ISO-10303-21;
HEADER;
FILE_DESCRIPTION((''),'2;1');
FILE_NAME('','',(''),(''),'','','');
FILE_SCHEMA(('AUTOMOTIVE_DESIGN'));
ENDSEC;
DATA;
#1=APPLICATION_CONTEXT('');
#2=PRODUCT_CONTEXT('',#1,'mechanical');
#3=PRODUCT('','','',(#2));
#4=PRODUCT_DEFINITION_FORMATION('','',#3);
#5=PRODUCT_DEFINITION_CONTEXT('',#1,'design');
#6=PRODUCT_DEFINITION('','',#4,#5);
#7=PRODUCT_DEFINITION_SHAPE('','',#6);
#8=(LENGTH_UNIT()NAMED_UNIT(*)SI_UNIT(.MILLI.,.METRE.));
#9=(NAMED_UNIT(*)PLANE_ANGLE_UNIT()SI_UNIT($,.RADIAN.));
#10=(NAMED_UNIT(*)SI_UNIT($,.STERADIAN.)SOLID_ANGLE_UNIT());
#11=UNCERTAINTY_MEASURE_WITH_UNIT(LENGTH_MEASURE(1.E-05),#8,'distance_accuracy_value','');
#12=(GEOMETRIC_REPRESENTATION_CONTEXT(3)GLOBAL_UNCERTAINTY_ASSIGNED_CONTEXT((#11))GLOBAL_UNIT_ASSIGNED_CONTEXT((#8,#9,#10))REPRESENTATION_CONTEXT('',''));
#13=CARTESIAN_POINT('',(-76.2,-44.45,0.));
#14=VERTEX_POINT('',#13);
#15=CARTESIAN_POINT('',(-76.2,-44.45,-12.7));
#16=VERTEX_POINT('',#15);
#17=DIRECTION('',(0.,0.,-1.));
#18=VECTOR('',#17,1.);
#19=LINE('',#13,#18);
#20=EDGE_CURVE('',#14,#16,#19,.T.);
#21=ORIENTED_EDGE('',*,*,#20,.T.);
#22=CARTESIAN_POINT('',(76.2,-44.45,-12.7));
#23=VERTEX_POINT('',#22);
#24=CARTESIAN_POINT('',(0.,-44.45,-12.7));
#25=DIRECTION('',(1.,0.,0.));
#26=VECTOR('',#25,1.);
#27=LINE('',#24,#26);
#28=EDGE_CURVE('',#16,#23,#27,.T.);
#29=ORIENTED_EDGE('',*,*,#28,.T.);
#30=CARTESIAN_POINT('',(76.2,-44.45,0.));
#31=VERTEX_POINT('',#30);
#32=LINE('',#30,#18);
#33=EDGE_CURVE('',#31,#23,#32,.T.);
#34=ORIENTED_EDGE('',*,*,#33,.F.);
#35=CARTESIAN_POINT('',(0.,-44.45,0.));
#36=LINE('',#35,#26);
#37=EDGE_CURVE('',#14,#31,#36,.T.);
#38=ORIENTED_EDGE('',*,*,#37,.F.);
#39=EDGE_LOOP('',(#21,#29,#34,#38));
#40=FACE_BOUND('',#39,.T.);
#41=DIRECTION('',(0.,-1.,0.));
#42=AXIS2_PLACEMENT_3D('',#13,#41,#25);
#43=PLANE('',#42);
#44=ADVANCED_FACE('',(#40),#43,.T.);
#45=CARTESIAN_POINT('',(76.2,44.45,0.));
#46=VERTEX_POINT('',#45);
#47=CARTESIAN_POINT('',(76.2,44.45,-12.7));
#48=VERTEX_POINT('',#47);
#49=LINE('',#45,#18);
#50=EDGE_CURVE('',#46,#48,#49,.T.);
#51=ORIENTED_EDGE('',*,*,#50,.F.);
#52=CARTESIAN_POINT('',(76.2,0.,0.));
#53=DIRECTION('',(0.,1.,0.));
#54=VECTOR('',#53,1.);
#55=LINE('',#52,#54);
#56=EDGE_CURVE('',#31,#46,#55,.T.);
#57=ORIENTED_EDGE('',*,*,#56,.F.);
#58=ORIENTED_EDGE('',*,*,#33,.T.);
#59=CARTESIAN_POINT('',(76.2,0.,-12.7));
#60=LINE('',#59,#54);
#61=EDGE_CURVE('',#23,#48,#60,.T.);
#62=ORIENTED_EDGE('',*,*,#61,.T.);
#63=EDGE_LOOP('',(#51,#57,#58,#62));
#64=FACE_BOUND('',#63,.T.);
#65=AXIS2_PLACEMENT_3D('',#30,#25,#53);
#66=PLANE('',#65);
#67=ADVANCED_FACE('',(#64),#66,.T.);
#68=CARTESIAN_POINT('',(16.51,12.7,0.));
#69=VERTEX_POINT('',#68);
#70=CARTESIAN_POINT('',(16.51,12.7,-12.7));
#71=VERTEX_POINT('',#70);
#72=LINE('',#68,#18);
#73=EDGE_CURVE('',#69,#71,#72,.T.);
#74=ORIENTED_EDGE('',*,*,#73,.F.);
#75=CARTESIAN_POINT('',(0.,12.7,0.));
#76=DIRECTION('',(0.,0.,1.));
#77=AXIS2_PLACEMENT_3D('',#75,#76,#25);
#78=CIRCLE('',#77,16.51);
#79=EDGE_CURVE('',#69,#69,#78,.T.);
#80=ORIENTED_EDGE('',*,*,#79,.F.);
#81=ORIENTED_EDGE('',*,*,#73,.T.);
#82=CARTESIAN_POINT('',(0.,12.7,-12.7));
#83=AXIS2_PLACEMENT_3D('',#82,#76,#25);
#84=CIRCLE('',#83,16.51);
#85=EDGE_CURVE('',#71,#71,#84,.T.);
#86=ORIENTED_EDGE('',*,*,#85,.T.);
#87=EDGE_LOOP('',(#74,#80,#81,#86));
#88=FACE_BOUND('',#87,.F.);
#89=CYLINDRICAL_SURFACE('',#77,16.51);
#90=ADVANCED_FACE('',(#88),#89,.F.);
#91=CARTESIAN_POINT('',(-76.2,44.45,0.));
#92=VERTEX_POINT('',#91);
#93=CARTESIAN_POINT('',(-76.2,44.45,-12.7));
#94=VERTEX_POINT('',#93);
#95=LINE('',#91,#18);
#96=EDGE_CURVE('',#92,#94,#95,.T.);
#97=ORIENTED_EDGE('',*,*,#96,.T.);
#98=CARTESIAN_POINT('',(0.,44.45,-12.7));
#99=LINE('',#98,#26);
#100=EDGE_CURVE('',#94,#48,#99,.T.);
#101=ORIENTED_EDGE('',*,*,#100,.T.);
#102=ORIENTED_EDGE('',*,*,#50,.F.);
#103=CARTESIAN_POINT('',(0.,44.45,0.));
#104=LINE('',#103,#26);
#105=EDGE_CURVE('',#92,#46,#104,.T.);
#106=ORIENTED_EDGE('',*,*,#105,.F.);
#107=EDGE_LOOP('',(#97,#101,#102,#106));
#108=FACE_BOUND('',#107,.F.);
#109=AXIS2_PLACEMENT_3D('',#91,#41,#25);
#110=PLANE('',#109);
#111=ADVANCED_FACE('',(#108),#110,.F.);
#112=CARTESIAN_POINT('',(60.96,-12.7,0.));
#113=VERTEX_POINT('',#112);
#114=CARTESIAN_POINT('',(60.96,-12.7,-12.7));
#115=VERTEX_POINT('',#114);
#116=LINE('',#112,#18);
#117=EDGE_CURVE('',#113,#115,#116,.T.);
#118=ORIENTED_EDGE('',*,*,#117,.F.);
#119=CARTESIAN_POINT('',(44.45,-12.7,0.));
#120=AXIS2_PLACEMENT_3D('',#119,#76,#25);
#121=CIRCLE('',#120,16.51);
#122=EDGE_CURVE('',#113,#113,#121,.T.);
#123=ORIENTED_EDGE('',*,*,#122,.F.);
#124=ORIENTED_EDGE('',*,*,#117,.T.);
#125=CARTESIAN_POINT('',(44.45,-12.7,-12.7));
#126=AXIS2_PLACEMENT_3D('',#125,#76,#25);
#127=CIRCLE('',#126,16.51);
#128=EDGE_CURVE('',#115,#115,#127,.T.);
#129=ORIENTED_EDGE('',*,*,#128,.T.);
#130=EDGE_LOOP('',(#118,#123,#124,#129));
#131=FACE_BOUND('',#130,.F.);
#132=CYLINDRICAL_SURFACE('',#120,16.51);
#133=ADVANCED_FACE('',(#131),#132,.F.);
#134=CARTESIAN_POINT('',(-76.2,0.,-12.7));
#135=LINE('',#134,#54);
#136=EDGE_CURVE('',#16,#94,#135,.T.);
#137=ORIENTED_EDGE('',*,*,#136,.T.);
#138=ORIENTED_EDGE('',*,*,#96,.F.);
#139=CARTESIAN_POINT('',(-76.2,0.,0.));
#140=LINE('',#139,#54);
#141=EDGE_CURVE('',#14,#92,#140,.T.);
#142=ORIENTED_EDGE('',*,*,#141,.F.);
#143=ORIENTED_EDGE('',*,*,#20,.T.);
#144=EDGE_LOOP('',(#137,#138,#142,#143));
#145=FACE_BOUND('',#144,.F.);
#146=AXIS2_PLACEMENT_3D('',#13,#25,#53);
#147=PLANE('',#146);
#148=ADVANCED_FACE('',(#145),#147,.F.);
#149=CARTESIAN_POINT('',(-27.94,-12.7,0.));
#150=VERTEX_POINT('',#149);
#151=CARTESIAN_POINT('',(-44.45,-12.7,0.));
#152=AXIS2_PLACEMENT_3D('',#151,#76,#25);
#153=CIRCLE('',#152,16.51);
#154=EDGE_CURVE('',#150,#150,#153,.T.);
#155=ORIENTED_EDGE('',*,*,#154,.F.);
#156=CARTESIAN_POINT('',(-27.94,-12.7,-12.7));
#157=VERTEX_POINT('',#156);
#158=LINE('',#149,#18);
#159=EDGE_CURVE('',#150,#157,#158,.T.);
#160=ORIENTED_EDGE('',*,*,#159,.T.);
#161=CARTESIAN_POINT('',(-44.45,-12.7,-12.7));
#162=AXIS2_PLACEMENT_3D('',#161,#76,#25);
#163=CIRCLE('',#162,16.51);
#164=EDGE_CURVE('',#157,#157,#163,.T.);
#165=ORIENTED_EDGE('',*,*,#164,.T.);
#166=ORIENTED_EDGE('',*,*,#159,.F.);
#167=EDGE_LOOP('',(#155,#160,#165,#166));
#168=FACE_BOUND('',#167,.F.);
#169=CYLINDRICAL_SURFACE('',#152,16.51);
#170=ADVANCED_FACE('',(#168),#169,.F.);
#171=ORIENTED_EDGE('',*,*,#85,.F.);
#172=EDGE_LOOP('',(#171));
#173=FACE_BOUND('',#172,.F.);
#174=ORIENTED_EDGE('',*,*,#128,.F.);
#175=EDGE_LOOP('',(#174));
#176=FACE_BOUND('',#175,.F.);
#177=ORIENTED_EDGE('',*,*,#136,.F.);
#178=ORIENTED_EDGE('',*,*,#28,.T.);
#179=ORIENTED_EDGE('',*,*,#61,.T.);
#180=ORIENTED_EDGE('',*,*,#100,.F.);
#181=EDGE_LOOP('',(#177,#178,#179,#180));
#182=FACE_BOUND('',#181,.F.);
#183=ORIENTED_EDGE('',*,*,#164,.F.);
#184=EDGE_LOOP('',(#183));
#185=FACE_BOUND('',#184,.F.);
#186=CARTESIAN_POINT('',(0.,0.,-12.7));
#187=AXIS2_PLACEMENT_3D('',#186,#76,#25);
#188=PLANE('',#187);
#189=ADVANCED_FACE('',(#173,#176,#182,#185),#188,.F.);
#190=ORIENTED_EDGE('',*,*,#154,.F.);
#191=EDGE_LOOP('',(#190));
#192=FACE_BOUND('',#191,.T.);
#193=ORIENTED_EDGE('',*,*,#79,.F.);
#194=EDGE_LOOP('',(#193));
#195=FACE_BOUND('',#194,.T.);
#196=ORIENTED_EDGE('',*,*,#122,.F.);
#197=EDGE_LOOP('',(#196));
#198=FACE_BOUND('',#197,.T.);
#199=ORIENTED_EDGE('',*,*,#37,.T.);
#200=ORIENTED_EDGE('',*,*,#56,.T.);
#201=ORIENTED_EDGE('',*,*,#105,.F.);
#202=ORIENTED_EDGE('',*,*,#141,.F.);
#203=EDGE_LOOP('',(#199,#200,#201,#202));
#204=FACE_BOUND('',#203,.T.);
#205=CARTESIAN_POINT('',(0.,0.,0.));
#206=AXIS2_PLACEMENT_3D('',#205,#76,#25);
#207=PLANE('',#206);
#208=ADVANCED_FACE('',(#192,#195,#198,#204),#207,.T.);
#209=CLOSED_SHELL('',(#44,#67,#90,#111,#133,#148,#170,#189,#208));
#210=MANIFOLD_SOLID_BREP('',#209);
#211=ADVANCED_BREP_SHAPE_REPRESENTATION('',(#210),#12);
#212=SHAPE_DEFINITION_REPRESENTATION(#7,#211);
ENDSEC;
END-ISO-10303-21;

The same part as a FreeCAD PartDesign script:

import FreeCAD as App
import Part
import Sketcher
from FreeCAD import Vector
Q = App.Units.Quantity


def add_polygon(sketch, points):
    """Adds a closed chain of lines whose ends are joined by coincident constraints."""
    first, n = sketch.GeometryCount, len(points)
    for a, b in zip(points, points[1:] + points[:1]):
        sketch.addGeometry(Part.LineSegment(App.Vector(*a, 0), App.Vector(*b, 0)), False)
    for i in range(n):
        sketch.addConstraint(Sketcher.Constraint("Coincident", first + i, 2, first + (i + 1) % n, 1))

doc = App.newDocument("Part")
body = doc.addObject("PartDesign::Body", "Body")

# Sketch on XY plane
sketch1 = body.newObject("Sketcher::SketchObject", "Sketch")
sketch1.AttachmentSupport = (doc.getObject("XY_Plane"), [""])
sketch1.MapMode = "FlatFace"
add_polygon(sketch1, [(-76.2, 44.45), (-76.2, -44.45), (76.2, -44.45), (76.2, 44.45)])  # lines 0-3
sketch1.addGeometry(Part.Circle(Vector(-44.45, -12.7, 0), Vector(0, 0, 1), 16.51), False)  # 4
sketch1.addGeometry(Part.Circle(Vector(44.45, -12.7, 0), Vector(0, 0, 1), 16.51), False)  # 5
sketch1.addGeometry(Part.Circle(Vector(0, 12.7, 0), Vector(0, 0, 1), 16.51), False)  # 6
sketch1.addConstraint(Sketcher.Constraint("Vertical", 0))
sketch1.addConstraint(Sketcher.Constraint("Horizontal", 1))
sketch1.addConstraint(Sketcher.Constraint("Vertical", 2))
sketch1.addConstraint(Sketcher.Constraint("Horizontal", 3))
sketch1.addConstraint(Sketcher.Constraint("Equal", 4, 5))
sketch1.addConstraint(Sketcher.Constraint("Equal", 5, 6))
sketch1.addConstraint(Sketcher.Constraint("Symmetric", 0, 2, 2, 2, -1, 1))
sketch1.addConstraint(Sketcher.Constraint("Symmetric", 4, 3, 5, 3, -2))
sketch1.addConstraint(Sketcher.Constraint("PointOnObject", 6, 3, -2))
sketch1.addConstraint(Sketcher.Constraint("Diameter", 4, Q("1.3 in")))
sketch1.addConstraint(Sketcher.Constraint("DistanceX", 1, 1, 1, 2, Q("6 in")))
sketch1.addConstraint(Sketcher.Constraint("DistanceY", 0, 2, 0, 1, Q("3.5 in")))
sketch1.addConstraint(Sketcher.Constraint("DistanceY", 4, 3, 6, 3, Q("1 in")))
sketch1.addConstraint(Sketcher.Constraint("DistanceY", 4, 3, -1, 1, Q("0.5 in")))
sketch1.addConstraint(Sketcher.Constraint("DistanceX", 4, 3, 5, 3, Q("3.5 in")))
pad1 = body.newObject("PartDesign::Pad", "Pad")
pad1.Profile = sketch1
pad1.Length = Q("0.5 in")
pad1.Reversed = True

doc.recompute()
